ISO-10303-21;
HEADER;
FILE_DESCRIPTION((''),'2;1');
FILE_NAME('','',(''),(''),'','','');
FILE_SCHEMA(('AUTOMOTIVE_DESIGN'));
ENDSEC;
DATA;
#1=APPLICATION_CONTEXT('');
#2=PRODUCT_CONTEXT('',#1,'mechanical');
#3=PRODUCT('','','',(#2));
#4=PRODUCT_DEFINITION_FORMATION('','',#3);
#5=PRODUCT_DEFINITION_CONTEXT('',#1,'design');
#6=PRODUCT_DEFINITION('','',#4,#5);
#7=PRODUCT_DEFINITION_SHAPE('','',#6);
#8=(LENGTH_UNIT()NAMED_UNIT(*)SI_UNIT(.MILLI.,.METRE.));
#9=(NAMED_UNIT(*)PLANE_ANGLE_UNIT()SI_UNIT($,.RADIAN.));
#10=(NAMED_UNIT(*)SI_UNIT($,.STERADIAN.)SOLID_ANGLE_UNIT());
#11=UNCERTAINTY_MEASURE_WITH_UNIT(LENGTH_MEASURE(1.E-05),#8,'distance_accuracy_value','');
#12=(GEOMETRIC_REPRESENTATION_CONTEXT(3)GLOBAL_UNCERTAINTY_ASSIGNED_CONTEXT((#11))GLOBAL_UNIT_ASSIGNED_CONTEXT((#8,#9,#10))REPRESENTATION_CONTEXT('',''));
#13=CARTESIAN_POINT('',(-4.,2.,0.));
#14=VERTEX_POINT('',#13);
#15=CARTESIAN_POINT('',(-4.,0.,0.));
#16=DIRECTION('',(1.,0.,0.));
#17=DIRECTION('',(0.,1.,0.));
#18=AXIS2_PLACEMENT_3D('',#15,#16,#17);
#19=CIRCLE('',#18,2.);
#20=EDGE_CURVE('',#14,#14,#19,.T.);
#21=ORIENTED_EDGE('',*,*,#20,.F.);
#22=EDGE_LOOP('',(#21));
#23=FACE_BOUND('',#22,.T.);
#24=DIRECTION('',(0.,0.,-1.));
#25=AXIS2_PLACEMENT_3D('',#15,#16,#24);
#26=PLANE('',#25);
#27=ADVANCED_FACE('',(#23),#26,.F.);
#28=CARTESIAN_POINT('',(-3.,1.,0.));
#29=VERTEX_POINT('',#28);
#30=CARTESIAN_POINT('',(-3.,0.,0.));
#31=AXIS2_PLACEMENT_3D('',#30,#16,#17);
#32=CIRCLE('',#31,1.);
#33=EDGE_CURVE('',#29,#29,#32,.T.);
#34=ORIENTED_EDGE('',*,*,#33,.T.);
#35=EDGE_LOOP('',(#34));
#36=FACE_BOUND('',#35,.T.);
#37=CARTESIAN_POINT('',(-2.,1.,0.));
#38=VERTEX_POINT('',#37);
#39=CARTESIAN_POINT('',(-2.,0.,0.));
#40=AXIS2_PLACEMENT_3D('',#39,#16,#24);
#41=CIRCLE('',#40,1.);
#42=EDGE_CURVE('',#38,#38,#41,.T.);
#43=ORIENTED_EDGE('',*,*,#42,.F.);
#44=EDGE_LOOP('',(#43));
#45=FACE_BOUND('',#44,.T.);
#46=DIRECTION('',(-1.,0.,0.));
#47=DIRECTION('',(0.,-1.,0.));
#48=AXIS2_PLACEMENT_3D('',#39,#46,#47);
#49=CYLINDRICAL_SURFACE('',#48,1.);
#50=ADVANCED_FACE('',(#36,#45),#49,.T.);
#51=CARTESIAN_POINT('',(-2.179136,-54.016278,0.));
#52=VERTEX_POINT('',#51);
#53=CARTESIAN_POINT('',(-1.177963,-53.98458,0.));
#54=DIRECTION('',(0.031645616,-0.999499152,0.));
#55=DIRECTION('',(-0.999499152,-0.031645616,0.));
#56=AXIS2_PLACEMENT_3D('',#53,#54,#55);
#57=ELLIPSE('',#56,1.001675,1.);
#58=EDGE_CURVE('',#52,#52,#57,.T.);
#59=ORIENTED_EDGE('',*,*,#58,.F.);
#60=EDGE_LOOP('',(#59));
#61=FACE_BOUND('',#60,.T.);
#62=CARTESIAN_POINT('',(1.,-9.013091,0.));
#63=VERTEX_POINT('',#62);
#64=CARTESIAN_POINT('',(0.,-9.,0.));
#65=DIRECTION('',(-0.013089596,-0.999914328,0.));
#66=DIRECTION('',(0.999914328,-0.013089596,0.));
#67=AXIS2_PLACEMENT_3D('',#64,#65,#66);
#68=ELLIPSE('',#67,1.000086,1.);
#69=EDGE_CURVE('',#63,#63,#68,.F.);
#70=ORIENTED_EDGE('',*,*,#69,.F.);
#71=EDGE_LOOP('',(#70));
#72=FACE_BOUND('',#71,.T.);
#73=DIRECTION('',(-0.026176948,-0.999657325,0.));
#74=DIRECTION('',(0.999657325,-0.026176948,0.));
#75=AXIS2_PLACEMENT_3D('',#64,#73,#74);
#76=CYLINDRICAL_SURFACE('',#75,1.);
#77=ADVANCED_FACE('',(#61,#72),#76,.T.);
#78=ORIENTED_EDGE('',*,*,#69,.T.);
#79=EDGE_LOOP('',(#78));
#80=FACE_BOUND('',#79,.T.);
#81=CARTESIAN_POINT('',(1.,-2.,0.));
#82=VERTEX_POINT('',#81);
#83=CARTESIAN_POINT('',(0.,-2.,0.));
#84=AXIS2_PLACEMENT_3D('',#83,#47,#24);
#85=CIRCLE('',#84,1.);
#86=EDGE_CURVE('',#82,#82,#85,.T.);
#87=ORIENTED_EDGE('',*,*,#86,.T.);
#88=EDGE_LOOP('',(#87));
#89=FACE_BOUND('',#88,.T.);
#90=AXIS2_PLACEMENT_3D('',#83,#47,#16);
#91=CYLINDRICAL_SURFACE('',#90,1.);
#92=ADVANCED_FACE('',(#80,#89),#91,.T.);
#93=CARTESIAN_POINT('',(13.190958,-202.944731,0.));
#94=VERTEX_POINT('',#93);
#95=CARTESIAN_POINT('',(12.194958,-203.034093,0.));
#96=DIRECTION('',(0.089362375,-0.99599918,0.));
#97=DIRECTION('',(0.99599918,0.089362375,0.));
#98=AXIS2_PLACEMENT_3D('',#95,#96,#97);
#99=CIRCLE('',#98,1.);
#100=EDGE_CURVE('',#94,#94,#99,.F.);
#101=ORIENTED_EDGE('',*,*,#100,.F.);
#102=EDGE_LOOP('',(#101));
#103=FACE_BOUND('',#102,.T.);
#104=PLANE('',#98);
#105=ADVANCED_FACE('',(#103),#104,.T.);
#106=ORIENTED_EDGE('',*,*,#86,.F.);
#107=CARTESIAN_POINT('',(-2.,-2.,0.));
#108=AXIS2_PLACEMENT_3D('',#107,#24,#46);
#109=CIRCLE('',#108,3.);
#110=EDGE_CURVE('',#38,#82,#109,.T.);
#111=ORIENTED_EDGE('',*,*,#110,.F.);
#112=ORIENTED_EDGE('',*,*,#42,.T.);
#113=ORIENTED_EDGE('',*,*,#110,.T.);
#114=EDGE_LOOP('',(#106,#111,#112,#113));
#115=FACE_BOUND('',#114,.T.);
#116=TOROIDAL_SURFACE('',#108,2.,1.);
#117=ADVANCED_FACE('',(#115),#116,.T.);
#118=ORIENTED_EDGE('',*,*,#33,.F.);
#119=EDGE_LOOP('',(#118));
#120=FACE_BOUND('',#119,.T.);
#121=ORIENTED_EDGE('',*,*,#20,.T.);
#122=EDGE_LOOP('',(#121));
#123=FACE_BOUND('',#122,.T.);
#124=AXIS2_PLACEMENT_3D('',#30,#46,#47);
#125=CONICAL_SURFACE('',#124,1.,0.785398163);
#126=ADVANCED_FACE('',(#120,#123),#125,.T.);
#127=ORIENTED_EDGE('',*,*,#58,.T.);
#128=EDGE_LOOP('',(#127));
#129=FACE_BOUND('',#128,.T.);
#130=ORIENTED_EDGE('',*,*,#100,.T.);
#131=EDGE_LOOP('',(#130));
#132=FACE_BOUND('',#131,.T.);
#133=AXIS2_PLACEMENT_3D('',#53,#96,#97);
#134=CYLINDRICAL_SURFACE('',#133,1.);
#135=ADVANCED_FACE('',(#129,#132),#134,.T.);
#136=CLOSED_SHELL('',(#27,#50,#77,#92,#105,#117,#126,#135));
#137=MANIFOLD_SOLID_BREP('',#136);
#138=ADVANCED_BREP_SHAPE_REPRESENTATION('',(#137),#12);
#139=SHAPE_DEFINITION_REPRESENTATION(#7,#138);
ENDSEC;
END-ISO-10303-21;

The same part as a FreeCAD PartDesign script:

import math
import FreeCAD as App
import Part
import Sketcher
Q = App.Units.Quantity


def add_polygon(sketch, points):
    """Adds a closed chain of lines whose ends are joined by coincident constraints."""
    first, n = sketch.GeometryCount, len(points)
    for a, b in zip(points, points[1:] + points[:1]):
        sketch.addGeometry(Part.LineSegment(App.Vector(*a, 0), App.Vector(*b, 0)), False)
    for i in range(n):
        sketch.addConstraint(Sketcher.Constraint("Coincident", first + i, 2, first + (i + 1) % n, 1))

doc = App.newDocument("Part")
body = doc.addObject("PartDesign::Body", "Body")

# Sketch on YZ plane
sketch1 = body.newObject("Sketcher::SketchObject", "Sketch")
sketch1.AttachmentSupport = (doc.getObject("YZ_Plane"), [""])
sketch1.MapMode = "FlatFace"
sketch1.AttachmentOffset = App.Placement(App.Vector(0, 0, -4), App.Rotation())
sketch1.addGeometry(Part.Circle(App.Vector(0, 0, 0), App.Vector(0, 0, 1), 1), False)
sketch1.addConstraint([
    Sketcher.Constraint("Coincident", 0, 3, -1, 1),
    Sketcher.Constraint("Diameter", 0, Q("2 mm")),
])

# Sketch on XY plane
sketch2 = body.newObject("Sketcher::SketchObject", "Sketch001")
sketch2.AttachmentSupport = (doc.getObject("XY_Plane"), [""])
sketch2.MapMode = "FlatFace"
sketch2.addGeometry([
    Part.LineSegment(App.Vector(12.2, -203, 0), App.Vector(-1.2, -54, 0)),  # 0
    Part.LineSegment(App.Vector(-1.2, -54, 0), App.Vector(0, -9, 0)),  # 1
    Part.LineSegment(App.Vector(0, -9, 0), App.Vector(0, -2, 0)),  # 2
    Part.ArcOfCircle(Part.Circle(App.Vector(-2, -2, 0), App.Vector(0, 0, 1), 2), math.radians(0), math.radians(90)),  # 3
    Part.LineSegment(App.Vector(-2, 0, 0), App.Vector(-4, 0, 0)),  # 4
], False)
sketch2.addConstraint([
    Sketcher.Constraint("Coincident", 0, 2, 1, 1),
    Sketcher.Constraint("Coincident", 1, 2, 2, 1),
    Sketcher.Constraint("Tangent", 2, 2, 3, 1),
    Sketcher.Constraint("Tangent", 3, 2, 4, 1),
    Sketcher.Constraint("Vertical", 2),
    Sketcher.Constraint("Horizontal", 4),
    Sketcher.Constraint("PointOnObject", 1, 2, -2),
    Sketcher.Constraint("PointOnObject", 3, 2, -1),
    Sketcher.Constraint("Radius", 3, Q("2 mm")),
    Sketcher.Constraint("DistanceX", 4, 2, 4, 1, Q("2 mm")),
    Sketcher.Constraint("DistanceY", 2, 1, 2, 2, Q("7 mm")),
    Sketcher.Constraint("Distance", 1, Q("45 mm")),
    Sketcher.Constraint("Angle", 1, Q("88.5 deg")),
    Sketcher.Constraint("Distance", 0, Q("149.648229 mm")),
    Sketcher.Constraint("DistanceX", -1, 1, 0, 1, Q("12.194958 mm")),
])
doc.recompute()

additivepipe = body.newObject("PartDesign::AdditivePipe", "AdditivePipe")
additivepipe.Profile = sketch1
additivepipe.Spine = (sketch2, ["Edge1", "Edge2", "Edge3", "Edge4", "Edge5"])
additivepipe.Transition = "Right corner"

# Sketch on XY plane
sketch3 = body.newObject("Sketcher::SketchObject", "Sketch002")
sketch3.AttachmentSupport = (doc.getObject("XY_Plane"), [""])
sketch3.MapMode = "FlatFace"
add_polygon(sketch3, [(-4, 2), (-4, 1), (-3, 1)])  # lines 0-2
sketch3.addConstraint([
    Sketcher.Constraint("Vertical", 0),
    Sketcher.Constraint("Horizontal", 1),
    Sketcher.Constraint("Equal", 1, 0),
    Sketcher.Constraint("DistanceX", 1, 1, 1, 2, Q("1 mm")),
    Sketcher.Constraint("DistanceX", 0, 2, -1, 1, Q("4 mm")),
    Sketcher.Constraint("DistanceY", -1, 1, 0, 2, Q("1 mm")),
])
revolution = body.newObject("PartDesign::Revolution", "Revolution")
revolution.Profile = sketch3
revolution.ReferenceAxis = (sketch3, ["H_Axis"])
revolution.Angle = 360

doc.recompute()
